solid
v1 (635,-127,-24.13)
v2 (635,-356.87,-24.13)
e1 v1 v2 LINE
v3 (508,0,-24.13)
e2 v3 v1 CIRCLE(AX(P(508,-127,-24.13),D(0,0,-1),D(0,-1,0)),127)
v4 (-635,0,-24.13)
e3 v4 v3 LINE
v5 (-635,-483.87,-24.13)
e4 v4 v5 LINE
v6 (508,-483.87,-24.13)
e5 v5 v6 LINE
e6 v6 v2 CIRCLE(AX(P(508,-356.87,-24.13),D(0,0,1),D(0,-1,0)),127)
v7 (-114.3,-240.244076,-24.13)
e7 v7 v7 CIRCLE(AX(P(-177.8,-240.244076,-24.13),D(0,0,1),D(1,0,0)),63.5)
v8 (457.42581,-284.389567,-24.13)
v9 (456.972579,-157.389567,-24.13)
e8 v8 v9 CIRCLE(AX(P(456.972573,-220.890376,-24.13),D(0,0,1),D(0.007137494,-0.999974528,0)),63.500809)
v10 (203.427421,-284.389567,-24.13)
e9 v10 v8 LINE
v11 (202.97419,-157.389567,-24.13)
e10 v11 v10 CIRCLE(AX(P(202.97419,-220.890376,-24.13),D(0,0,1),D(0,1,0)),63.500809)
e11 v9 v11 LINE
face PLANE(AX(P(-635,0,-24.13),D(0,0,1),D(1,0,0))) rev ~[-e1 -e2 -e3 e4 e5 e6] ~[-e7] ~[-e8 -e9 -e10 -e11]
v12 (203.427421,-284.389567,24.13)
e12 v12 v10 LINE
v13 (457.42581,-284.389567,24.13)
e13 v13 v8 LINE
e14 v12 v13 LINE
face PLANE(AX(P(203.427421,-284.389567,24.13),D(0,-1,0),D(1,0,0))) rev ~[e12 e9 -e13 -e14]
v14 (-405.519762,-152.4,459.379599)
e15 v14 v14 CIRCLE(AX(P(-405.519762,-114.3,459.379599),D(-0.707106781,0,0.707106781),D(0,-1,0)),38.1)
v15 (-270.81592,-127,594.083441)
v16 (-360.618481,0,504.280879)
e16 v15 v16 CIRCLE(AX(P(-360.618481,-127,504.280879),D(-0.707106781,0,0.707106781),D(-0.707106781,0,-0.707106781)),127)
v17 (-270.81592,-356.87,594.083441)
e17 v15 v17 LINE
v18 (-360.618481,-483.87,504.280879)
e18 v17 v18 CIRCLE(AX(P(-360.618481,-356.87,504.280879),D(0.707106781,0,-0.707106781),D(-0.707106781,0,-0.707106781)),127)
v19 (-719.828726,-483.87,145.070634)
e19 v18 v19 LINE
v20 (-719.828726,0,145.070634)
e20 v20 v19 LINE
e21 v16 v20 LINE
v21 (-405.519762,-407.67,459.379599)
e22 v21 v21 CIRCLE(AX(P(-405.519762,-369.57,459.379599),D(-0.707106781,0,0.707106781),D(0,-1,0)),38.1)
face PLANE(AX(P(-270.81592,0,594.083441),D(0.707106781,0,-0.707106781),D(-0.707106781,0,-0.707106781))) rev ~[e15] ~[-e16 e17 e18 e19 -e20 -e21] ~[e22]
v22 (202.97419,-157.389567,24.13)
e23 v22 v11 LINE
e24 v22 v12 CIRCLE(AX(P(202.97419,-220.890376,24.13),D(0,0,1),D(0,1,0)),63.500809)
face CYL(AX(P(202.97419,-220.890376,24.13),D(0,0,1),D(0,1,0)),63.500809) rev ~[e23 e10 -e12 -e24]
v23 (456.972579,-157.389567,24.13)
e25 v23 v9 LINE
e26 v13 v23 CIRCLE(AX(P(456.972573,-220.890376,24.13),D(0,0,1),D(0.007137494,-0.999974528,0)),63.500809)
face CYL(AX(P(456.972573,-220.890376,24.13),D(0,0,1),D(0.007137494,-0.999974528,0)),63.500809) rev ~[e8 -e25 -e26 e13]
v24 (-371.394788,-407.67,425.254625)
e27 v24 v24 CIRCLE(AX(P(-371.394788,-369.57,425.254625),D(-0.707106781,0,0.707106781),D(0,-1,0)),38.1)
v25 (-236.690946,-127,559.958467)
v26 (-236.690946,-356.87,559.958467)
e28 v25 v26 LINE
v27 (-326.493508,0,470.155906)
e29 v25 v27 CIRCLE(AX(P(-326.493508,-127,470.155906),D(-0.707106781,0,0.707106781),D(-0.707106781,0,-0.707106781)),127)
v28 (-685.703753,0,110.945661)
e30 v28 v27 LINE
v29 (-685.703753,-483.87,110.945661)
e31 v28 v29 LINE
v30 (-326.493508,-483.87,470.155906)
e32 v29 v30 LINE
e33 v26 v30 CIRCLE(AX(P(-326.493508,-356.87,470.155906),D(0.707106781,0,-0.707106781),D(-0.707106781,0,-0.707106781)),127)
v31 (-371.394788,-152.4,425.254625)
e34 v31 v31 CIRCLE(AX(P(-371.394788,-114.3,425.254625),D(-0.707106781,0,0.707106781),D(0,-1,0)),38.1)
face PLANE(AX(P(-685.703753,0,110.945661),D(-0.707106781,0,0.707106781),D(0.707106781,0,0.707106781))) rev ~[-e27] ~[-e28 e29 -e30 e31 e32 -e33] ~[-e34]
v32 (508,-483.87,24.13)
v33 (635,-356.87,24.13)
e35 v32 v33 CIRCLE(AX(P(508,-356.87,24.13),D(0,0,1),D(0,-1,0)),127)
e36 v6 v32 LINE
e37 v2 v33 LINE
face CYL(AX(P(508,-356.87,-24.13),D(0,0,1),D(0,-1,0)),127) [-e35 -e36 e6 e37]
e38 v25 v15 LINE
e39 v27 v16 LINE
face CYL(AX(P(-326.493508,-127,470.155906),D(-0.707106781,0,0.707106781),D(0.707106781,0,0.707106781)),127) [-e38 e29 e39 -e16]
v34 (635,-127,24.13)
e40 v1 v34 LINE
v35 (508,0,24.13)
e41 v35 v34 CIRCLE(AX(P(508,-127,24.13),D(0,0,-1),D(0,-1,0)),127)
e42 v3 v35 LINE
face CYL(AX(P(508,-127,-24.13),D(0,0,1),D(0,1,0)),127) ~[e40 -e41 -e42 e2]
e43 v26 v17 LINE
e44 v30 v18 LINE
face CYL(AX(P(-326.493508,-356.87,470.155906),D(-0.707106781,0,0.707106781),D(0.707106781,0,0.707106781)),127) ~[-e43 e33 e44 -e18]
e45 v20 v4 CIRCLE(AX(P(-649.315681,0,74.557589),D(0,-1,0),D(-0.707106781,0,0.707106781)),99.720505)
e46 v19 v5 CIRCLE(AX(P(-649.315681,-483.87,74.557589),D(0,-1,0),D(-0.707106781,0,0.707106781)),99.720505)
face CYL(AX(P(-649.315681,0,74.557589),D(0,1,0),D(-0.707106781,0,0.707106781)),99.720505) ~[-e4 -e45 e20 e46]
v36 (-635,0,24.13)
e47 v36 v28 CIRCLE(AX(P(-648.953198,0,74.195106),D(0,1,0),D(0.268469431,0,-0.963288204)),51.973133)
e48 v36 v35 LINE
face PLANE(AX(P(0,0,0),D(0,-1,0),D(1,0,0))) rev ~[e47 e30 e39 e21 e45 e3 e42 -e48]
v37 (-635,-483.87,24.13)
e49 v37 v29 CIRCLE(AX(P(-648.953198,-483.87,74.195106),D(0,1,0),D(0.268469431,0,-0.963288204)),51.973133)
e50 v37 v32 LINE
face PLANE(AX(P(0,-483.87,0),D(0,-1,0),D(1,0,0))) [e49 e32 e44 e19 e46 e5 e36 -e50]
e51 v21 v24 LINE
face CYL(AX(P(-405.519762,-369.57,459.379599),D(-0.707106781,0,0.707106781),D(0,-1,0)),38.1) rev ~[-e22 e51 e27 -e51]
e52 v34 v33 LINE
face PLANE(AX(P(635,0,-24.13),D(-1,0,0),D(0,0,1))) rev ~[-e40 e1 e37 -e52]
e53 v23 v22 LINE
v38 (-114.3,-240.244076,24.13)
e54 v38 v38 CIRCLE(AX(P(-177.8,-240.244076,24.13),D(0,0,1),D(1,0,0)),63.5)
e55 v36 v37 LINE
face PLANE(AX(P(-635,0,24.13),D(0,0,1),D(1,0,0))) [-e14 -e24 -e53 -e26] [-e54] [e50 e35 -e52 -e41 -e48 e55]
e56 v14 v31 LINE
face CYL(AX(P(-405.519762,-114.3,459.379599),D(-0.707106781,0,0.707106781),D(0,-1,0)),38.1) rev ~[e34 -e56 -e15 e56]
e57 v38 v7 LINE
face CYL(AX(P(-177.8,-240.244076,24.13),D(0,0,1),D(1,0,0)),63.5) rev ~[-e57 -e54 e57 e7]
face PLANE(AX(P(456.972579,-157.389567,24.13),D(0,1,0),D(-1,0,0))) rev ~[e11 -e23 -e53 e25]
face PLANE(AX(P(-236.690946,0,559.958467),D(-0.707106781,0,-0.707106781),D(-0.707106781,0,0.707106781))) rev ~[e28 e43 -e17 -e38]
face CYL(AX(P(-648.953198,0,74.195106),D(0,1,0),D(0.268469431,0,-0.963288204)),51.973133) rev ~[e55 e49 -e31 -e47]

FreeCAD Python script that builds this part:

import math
import FreeCAD as App
import Part
import Sketcher
from FreeCAD import Vector
Q = App.Units.Quantity


def edges_at(feature, points):
    """Names of the edges that pass closest to the given points."""
    edges = feature.Shape.Edges
    near = lambda p: min(range(len(edges)), key=lambda i: edges[i].distToShape(Part.Vertex(*p))[0])
    return sorted({f"Edge{near(p) + 1}" for p in points})

doc = App.newDocument("Part")
body = doc.addObject("PartDesign::Body", "Body")

# Sketch on XZ plane
sketch1 = body.newObject("Sketcher::SketchObject", "Sketch")
sketch1.AttachmentSupport = (doc.getObject("XZ_Plane"), [""])
sketch1.MapMode = "FlatFace"
sketch1.addGeometry(Part.LineSegment(Vector(-635, -24.13, 0), Vector(635, -24.13, 0)), False)
sketch1.addGeometry(Part.LineSegment(Vector(635, -24.13, 0), Vector(635, 24.13, 0)), False)
sketch1.addGeometry(Part.LineSegment(Vector(635, 24.13, 0), Vector(-635, 24.13, 0)), False)
sketch1.addGeometry(Part.ArcOfCircle(Part.Circle(Vector(-648.953198, 74.195106, 0), Vector(0, 0, 1), 51.973133), math.radians(135), math.radians(285.573209)), False)
sketch1.addGeometry(Part.LineSegment(Vector(-685.703753, 110.945661, 0), Vector(-236.690946, 559.958467, 0)), False)
sketch1.addGeometry(Part.LineSegment(Vector(-236.690946, 559.958467, 0), Vector(-270.81592, 594.083441, 0)), False)
sketch1.addGeometry(Part.LineSegment(Vector(-270.81592, 594.083441, 0), Vector(-719.828726, 145.070634, 0)), False)
sketch1.addGeometry(Part.ArcOfCircle(Part.Circle(Vector(-649.315681, 74.557589, 0), Vector(0, 0, 1), 99.720505), math.radians(135), math.radians(278.253788)), False)
sketch1.addConstraint(Sketcher.Constraint("Coincident", 0, 2, 1, 1))
sketch1.addConstraint(Sketcher.Constraint("Coincident", 1, 2, 2, 1))
sketch1.addConstraint(Sketcher.Constraint("Coincident", 2, 2, 3, 2))
sketch1.addConstraint(Sketcher.Constraint("Tangent", 3, 1, 4, 1))
sketch1.addConstraint(Sketcher.Constraint("Coincident", 4, 2, 5, 1))
sketch1.addConstraint(Sketcher.Constraint("Coincident", 5, 2, 6, 1))
sketch1.addConstraint(Sketcher.Constraint("Tangent", 6, 2, 7, 1))
sketch1.addConstraint(Sketcher.Constraint("Coincident", 7, 2, 0, 1))
sketch1.addConstraint(Sketcher.Constraint("Horizontal", 0))
sketch1.addConstraint(Sketcher.Constraint("Vertical", 1))
sketch1.addConstraint(Sketcher.Constraint("Horizontal", 2))
sketch1.addConstraint(Sketcher.Constraint("Symmetric", 0, 2, 2, 2, -1, 1))
sketch1.addConstraint(Sketcher.Constraint("Perpendicular", 4, 5))
sketch1.addConstraint(Sketcher.Constraint("Perpendicular", 5, 6))
sketch1.addConstraint(Sketcher.Constraint("Vertical", 2, 2, 7, 2))
sketch1.addConstraint(Sketcher.Constraint("Equal", 4, 6))
sketch1.addConstraint(Sketcher.Constraint("DistanceX", 0, 1, 0, 2, Q("50 in")))
sketch1.addConstraint(Sketcher.Constraint("Distance", 4, Q("25 in")))
sketch1.addConstraint(Sketcher.Constraint("DistanceY", 1, 1, 1, 2, Q("1.9 in")))
sketch1.addConstraint(Sketcher.Constraint("Angle", 4, Q("45 deg")))
sketch1.addConstraint(Sketcher.Constraint("Distance", 5, Q("1.9 in")))
sketch1.addConstraint(Sketcher.Constraint("Radius", 3, 51.973133))
sketch1.addConstraint(Sketcher.Constraint("Radius", 7, 99.720505))
pad1 = body.newObject("PartDesign::Pad", "Pad")
pad1.Profile = sketch1
pad1.Length = Q("19.05 in")
doc.recompute()

fillet = body.newObject("PartDesign::Fillet", "Fillet")
fillet.Base = (pad1, edges_at(pad1, [(-253.753, -483.87, 577.021), (-253.753, 0, 577.021)]))
fillet.Radius = Q("5 in")

# Sketch on an angled plane
sketch2 = body.newObject("Sketcher::SketchObject", "Sketch001")
sketch2.Placement = App.Placement(Vector(-432.44968, 0, 432.44968), App.Rotation(Vector(0, -1, 0), Vector(0.707106781, 0, 0.707106781), Vector(-0.707106781, 0, 0.707106781), "ZXY"))
sketch2.addGeometry(Part.Circle(Vector(114.3, 38.084656, 0), Vector(0, 0, 1), 38.1), False)
sketch2.addGeometry(Part.Circle(Vector(369.57, 38.084656, 0), Vector(0, 0, 1), 38.1), False)
sketch2.addConstraint(Sketcher.Constraint("Equal", 0, 1))
sketch2.addConstraint(Sketcher.Constraint("Horizontal", 0, 3, 1, 3))
sketch2.addConstraint(Sketcher.Constraint("Diameter", 0, Q("3 in")))
sketch2.addConstraint(Sketcher.Constraint("DistanceX", -1, 1, 0, 3, Q("4.5 in")))
sketch2.addConstraint(Sketcher.Constraint("DistanceX", -1, 1, 1, 3, Q("14.55 in")))
sketch2.addConstraint(Sketcher.Constraint("DistanceY", -1, 1, 0, 3, 38.084656))
pocket1 = body.newObject("PartDesign::Pocket", "Pocket")
pocket1.Profile = sketch2
pocket1.Length = Q("5 in")

# Sketch on XY plane
sketch3 = body.newObject("Sketcher::SketchObject", "Sketch002")
sketch3.AttachmentSupport = (doc.getObject("XY_Plane"), [""])
sketch3.MapMode = "FlatFace"
sketch3.AttachmentOffset = App.Placement(Vector(0, 0, 0.95 * 25.4), App.Rotation())
sketch3.addGeometry(Part.LineSegment(Vector(203.427421, -284.389567, 0), Vector(457.42581, -284.389567, 0)), False)
sketch3.addGeometry(Part.ArcOfCircle(Part.Circle(Vector(456.972573, -220.890376, 0), Vector(0, 0, 1), 63.500809), math.radians(-89.591048), math.radians(89.999995)), False)
sketch3.addGeometry(Part.LineSegment(Vector(456.972579, -157.389567, 0), Vector(202.97419, -157.389567, 0)), False)
sketch3.addGeometry(Part.ArcOfCircle(Part.Circle(Vector(202.97419, -220.890376, 0), Vector(0, 0, 1), 63.500809), math.radians(90), math.radians(270.408946)), False)
sketch3.addGeometry(Part.Circle(Vector(-177.8, -240.244076, 0), Vector(0, 0, 1), 63.5), False)
sketch3.addConstraint(Sketcher.Constraint("Coincident", 0, 2, 1, 1))
sketch3.addConstraint(Sketcher.Constraint("Tangent", 1, 2, 2, 1))
sketch3.addConstraint(Sketcher.Constraint("Tangent", 2, 2, 3, 1))
sketch3.addConstraint(Sketcher.Constraint("Coincident", 3, 2, 0, 1))
sketch3.addConstraint(Sketcher.Constraint("Horizontal", 0))
sketch3.addConstraint(Sketcher.Constraint("Horizontal", 2))
sketch3.addConstraint(Sketcher.Constraint("Equal", 1, 3))
sketch3.addConstraint(Sketcher.Constraint("Diameter", 4, Q("5 in")))
sketch3.addConstraint(Sketcher.Constraint("DistanceX", 4, 3, -1, 1, Q("7 in")))
sketch3.addConstraint(Sketcher.Constraint("DistanceY", 0, 2, 1, 2, Q("5 in")))
sketch3.addConstraint(Sketcher.Constraint("Radius", 1, 63.500809))
sketch3.addConstraint(Sketcher.Constraint("DistanceX", 0, 1, 0, 2, 253.998388))
sketch3.addConstraint(Sketcher.Constraint("DistanceY", 4, 3, 3, 3, 19.3537))
sketch3.addConstraint(Sketcher.Constraint("DistanceX", -1, 1, 3, 3, 202.97419))
sketch3.addConstraint(Sketcher.Constraint("DistanceY", 1, 3, -1, 1, 220.890376))
pocket2 = body.newObject("PartDesign::Pocket", "Pocket001")
pocket2.Profile = sketch3
pocket2.Length = Q("2 in")
doc.recompute()

fillet2 = body.newObject("PartDesign::Fillet", "Fillet001")
fillet2.Base = (pocket2, edges_at(pocket2, [(635, -483.87, 0), (635, 0, 0)]))
fillet2.Radius = Q("5 in")

doc.recompute()
